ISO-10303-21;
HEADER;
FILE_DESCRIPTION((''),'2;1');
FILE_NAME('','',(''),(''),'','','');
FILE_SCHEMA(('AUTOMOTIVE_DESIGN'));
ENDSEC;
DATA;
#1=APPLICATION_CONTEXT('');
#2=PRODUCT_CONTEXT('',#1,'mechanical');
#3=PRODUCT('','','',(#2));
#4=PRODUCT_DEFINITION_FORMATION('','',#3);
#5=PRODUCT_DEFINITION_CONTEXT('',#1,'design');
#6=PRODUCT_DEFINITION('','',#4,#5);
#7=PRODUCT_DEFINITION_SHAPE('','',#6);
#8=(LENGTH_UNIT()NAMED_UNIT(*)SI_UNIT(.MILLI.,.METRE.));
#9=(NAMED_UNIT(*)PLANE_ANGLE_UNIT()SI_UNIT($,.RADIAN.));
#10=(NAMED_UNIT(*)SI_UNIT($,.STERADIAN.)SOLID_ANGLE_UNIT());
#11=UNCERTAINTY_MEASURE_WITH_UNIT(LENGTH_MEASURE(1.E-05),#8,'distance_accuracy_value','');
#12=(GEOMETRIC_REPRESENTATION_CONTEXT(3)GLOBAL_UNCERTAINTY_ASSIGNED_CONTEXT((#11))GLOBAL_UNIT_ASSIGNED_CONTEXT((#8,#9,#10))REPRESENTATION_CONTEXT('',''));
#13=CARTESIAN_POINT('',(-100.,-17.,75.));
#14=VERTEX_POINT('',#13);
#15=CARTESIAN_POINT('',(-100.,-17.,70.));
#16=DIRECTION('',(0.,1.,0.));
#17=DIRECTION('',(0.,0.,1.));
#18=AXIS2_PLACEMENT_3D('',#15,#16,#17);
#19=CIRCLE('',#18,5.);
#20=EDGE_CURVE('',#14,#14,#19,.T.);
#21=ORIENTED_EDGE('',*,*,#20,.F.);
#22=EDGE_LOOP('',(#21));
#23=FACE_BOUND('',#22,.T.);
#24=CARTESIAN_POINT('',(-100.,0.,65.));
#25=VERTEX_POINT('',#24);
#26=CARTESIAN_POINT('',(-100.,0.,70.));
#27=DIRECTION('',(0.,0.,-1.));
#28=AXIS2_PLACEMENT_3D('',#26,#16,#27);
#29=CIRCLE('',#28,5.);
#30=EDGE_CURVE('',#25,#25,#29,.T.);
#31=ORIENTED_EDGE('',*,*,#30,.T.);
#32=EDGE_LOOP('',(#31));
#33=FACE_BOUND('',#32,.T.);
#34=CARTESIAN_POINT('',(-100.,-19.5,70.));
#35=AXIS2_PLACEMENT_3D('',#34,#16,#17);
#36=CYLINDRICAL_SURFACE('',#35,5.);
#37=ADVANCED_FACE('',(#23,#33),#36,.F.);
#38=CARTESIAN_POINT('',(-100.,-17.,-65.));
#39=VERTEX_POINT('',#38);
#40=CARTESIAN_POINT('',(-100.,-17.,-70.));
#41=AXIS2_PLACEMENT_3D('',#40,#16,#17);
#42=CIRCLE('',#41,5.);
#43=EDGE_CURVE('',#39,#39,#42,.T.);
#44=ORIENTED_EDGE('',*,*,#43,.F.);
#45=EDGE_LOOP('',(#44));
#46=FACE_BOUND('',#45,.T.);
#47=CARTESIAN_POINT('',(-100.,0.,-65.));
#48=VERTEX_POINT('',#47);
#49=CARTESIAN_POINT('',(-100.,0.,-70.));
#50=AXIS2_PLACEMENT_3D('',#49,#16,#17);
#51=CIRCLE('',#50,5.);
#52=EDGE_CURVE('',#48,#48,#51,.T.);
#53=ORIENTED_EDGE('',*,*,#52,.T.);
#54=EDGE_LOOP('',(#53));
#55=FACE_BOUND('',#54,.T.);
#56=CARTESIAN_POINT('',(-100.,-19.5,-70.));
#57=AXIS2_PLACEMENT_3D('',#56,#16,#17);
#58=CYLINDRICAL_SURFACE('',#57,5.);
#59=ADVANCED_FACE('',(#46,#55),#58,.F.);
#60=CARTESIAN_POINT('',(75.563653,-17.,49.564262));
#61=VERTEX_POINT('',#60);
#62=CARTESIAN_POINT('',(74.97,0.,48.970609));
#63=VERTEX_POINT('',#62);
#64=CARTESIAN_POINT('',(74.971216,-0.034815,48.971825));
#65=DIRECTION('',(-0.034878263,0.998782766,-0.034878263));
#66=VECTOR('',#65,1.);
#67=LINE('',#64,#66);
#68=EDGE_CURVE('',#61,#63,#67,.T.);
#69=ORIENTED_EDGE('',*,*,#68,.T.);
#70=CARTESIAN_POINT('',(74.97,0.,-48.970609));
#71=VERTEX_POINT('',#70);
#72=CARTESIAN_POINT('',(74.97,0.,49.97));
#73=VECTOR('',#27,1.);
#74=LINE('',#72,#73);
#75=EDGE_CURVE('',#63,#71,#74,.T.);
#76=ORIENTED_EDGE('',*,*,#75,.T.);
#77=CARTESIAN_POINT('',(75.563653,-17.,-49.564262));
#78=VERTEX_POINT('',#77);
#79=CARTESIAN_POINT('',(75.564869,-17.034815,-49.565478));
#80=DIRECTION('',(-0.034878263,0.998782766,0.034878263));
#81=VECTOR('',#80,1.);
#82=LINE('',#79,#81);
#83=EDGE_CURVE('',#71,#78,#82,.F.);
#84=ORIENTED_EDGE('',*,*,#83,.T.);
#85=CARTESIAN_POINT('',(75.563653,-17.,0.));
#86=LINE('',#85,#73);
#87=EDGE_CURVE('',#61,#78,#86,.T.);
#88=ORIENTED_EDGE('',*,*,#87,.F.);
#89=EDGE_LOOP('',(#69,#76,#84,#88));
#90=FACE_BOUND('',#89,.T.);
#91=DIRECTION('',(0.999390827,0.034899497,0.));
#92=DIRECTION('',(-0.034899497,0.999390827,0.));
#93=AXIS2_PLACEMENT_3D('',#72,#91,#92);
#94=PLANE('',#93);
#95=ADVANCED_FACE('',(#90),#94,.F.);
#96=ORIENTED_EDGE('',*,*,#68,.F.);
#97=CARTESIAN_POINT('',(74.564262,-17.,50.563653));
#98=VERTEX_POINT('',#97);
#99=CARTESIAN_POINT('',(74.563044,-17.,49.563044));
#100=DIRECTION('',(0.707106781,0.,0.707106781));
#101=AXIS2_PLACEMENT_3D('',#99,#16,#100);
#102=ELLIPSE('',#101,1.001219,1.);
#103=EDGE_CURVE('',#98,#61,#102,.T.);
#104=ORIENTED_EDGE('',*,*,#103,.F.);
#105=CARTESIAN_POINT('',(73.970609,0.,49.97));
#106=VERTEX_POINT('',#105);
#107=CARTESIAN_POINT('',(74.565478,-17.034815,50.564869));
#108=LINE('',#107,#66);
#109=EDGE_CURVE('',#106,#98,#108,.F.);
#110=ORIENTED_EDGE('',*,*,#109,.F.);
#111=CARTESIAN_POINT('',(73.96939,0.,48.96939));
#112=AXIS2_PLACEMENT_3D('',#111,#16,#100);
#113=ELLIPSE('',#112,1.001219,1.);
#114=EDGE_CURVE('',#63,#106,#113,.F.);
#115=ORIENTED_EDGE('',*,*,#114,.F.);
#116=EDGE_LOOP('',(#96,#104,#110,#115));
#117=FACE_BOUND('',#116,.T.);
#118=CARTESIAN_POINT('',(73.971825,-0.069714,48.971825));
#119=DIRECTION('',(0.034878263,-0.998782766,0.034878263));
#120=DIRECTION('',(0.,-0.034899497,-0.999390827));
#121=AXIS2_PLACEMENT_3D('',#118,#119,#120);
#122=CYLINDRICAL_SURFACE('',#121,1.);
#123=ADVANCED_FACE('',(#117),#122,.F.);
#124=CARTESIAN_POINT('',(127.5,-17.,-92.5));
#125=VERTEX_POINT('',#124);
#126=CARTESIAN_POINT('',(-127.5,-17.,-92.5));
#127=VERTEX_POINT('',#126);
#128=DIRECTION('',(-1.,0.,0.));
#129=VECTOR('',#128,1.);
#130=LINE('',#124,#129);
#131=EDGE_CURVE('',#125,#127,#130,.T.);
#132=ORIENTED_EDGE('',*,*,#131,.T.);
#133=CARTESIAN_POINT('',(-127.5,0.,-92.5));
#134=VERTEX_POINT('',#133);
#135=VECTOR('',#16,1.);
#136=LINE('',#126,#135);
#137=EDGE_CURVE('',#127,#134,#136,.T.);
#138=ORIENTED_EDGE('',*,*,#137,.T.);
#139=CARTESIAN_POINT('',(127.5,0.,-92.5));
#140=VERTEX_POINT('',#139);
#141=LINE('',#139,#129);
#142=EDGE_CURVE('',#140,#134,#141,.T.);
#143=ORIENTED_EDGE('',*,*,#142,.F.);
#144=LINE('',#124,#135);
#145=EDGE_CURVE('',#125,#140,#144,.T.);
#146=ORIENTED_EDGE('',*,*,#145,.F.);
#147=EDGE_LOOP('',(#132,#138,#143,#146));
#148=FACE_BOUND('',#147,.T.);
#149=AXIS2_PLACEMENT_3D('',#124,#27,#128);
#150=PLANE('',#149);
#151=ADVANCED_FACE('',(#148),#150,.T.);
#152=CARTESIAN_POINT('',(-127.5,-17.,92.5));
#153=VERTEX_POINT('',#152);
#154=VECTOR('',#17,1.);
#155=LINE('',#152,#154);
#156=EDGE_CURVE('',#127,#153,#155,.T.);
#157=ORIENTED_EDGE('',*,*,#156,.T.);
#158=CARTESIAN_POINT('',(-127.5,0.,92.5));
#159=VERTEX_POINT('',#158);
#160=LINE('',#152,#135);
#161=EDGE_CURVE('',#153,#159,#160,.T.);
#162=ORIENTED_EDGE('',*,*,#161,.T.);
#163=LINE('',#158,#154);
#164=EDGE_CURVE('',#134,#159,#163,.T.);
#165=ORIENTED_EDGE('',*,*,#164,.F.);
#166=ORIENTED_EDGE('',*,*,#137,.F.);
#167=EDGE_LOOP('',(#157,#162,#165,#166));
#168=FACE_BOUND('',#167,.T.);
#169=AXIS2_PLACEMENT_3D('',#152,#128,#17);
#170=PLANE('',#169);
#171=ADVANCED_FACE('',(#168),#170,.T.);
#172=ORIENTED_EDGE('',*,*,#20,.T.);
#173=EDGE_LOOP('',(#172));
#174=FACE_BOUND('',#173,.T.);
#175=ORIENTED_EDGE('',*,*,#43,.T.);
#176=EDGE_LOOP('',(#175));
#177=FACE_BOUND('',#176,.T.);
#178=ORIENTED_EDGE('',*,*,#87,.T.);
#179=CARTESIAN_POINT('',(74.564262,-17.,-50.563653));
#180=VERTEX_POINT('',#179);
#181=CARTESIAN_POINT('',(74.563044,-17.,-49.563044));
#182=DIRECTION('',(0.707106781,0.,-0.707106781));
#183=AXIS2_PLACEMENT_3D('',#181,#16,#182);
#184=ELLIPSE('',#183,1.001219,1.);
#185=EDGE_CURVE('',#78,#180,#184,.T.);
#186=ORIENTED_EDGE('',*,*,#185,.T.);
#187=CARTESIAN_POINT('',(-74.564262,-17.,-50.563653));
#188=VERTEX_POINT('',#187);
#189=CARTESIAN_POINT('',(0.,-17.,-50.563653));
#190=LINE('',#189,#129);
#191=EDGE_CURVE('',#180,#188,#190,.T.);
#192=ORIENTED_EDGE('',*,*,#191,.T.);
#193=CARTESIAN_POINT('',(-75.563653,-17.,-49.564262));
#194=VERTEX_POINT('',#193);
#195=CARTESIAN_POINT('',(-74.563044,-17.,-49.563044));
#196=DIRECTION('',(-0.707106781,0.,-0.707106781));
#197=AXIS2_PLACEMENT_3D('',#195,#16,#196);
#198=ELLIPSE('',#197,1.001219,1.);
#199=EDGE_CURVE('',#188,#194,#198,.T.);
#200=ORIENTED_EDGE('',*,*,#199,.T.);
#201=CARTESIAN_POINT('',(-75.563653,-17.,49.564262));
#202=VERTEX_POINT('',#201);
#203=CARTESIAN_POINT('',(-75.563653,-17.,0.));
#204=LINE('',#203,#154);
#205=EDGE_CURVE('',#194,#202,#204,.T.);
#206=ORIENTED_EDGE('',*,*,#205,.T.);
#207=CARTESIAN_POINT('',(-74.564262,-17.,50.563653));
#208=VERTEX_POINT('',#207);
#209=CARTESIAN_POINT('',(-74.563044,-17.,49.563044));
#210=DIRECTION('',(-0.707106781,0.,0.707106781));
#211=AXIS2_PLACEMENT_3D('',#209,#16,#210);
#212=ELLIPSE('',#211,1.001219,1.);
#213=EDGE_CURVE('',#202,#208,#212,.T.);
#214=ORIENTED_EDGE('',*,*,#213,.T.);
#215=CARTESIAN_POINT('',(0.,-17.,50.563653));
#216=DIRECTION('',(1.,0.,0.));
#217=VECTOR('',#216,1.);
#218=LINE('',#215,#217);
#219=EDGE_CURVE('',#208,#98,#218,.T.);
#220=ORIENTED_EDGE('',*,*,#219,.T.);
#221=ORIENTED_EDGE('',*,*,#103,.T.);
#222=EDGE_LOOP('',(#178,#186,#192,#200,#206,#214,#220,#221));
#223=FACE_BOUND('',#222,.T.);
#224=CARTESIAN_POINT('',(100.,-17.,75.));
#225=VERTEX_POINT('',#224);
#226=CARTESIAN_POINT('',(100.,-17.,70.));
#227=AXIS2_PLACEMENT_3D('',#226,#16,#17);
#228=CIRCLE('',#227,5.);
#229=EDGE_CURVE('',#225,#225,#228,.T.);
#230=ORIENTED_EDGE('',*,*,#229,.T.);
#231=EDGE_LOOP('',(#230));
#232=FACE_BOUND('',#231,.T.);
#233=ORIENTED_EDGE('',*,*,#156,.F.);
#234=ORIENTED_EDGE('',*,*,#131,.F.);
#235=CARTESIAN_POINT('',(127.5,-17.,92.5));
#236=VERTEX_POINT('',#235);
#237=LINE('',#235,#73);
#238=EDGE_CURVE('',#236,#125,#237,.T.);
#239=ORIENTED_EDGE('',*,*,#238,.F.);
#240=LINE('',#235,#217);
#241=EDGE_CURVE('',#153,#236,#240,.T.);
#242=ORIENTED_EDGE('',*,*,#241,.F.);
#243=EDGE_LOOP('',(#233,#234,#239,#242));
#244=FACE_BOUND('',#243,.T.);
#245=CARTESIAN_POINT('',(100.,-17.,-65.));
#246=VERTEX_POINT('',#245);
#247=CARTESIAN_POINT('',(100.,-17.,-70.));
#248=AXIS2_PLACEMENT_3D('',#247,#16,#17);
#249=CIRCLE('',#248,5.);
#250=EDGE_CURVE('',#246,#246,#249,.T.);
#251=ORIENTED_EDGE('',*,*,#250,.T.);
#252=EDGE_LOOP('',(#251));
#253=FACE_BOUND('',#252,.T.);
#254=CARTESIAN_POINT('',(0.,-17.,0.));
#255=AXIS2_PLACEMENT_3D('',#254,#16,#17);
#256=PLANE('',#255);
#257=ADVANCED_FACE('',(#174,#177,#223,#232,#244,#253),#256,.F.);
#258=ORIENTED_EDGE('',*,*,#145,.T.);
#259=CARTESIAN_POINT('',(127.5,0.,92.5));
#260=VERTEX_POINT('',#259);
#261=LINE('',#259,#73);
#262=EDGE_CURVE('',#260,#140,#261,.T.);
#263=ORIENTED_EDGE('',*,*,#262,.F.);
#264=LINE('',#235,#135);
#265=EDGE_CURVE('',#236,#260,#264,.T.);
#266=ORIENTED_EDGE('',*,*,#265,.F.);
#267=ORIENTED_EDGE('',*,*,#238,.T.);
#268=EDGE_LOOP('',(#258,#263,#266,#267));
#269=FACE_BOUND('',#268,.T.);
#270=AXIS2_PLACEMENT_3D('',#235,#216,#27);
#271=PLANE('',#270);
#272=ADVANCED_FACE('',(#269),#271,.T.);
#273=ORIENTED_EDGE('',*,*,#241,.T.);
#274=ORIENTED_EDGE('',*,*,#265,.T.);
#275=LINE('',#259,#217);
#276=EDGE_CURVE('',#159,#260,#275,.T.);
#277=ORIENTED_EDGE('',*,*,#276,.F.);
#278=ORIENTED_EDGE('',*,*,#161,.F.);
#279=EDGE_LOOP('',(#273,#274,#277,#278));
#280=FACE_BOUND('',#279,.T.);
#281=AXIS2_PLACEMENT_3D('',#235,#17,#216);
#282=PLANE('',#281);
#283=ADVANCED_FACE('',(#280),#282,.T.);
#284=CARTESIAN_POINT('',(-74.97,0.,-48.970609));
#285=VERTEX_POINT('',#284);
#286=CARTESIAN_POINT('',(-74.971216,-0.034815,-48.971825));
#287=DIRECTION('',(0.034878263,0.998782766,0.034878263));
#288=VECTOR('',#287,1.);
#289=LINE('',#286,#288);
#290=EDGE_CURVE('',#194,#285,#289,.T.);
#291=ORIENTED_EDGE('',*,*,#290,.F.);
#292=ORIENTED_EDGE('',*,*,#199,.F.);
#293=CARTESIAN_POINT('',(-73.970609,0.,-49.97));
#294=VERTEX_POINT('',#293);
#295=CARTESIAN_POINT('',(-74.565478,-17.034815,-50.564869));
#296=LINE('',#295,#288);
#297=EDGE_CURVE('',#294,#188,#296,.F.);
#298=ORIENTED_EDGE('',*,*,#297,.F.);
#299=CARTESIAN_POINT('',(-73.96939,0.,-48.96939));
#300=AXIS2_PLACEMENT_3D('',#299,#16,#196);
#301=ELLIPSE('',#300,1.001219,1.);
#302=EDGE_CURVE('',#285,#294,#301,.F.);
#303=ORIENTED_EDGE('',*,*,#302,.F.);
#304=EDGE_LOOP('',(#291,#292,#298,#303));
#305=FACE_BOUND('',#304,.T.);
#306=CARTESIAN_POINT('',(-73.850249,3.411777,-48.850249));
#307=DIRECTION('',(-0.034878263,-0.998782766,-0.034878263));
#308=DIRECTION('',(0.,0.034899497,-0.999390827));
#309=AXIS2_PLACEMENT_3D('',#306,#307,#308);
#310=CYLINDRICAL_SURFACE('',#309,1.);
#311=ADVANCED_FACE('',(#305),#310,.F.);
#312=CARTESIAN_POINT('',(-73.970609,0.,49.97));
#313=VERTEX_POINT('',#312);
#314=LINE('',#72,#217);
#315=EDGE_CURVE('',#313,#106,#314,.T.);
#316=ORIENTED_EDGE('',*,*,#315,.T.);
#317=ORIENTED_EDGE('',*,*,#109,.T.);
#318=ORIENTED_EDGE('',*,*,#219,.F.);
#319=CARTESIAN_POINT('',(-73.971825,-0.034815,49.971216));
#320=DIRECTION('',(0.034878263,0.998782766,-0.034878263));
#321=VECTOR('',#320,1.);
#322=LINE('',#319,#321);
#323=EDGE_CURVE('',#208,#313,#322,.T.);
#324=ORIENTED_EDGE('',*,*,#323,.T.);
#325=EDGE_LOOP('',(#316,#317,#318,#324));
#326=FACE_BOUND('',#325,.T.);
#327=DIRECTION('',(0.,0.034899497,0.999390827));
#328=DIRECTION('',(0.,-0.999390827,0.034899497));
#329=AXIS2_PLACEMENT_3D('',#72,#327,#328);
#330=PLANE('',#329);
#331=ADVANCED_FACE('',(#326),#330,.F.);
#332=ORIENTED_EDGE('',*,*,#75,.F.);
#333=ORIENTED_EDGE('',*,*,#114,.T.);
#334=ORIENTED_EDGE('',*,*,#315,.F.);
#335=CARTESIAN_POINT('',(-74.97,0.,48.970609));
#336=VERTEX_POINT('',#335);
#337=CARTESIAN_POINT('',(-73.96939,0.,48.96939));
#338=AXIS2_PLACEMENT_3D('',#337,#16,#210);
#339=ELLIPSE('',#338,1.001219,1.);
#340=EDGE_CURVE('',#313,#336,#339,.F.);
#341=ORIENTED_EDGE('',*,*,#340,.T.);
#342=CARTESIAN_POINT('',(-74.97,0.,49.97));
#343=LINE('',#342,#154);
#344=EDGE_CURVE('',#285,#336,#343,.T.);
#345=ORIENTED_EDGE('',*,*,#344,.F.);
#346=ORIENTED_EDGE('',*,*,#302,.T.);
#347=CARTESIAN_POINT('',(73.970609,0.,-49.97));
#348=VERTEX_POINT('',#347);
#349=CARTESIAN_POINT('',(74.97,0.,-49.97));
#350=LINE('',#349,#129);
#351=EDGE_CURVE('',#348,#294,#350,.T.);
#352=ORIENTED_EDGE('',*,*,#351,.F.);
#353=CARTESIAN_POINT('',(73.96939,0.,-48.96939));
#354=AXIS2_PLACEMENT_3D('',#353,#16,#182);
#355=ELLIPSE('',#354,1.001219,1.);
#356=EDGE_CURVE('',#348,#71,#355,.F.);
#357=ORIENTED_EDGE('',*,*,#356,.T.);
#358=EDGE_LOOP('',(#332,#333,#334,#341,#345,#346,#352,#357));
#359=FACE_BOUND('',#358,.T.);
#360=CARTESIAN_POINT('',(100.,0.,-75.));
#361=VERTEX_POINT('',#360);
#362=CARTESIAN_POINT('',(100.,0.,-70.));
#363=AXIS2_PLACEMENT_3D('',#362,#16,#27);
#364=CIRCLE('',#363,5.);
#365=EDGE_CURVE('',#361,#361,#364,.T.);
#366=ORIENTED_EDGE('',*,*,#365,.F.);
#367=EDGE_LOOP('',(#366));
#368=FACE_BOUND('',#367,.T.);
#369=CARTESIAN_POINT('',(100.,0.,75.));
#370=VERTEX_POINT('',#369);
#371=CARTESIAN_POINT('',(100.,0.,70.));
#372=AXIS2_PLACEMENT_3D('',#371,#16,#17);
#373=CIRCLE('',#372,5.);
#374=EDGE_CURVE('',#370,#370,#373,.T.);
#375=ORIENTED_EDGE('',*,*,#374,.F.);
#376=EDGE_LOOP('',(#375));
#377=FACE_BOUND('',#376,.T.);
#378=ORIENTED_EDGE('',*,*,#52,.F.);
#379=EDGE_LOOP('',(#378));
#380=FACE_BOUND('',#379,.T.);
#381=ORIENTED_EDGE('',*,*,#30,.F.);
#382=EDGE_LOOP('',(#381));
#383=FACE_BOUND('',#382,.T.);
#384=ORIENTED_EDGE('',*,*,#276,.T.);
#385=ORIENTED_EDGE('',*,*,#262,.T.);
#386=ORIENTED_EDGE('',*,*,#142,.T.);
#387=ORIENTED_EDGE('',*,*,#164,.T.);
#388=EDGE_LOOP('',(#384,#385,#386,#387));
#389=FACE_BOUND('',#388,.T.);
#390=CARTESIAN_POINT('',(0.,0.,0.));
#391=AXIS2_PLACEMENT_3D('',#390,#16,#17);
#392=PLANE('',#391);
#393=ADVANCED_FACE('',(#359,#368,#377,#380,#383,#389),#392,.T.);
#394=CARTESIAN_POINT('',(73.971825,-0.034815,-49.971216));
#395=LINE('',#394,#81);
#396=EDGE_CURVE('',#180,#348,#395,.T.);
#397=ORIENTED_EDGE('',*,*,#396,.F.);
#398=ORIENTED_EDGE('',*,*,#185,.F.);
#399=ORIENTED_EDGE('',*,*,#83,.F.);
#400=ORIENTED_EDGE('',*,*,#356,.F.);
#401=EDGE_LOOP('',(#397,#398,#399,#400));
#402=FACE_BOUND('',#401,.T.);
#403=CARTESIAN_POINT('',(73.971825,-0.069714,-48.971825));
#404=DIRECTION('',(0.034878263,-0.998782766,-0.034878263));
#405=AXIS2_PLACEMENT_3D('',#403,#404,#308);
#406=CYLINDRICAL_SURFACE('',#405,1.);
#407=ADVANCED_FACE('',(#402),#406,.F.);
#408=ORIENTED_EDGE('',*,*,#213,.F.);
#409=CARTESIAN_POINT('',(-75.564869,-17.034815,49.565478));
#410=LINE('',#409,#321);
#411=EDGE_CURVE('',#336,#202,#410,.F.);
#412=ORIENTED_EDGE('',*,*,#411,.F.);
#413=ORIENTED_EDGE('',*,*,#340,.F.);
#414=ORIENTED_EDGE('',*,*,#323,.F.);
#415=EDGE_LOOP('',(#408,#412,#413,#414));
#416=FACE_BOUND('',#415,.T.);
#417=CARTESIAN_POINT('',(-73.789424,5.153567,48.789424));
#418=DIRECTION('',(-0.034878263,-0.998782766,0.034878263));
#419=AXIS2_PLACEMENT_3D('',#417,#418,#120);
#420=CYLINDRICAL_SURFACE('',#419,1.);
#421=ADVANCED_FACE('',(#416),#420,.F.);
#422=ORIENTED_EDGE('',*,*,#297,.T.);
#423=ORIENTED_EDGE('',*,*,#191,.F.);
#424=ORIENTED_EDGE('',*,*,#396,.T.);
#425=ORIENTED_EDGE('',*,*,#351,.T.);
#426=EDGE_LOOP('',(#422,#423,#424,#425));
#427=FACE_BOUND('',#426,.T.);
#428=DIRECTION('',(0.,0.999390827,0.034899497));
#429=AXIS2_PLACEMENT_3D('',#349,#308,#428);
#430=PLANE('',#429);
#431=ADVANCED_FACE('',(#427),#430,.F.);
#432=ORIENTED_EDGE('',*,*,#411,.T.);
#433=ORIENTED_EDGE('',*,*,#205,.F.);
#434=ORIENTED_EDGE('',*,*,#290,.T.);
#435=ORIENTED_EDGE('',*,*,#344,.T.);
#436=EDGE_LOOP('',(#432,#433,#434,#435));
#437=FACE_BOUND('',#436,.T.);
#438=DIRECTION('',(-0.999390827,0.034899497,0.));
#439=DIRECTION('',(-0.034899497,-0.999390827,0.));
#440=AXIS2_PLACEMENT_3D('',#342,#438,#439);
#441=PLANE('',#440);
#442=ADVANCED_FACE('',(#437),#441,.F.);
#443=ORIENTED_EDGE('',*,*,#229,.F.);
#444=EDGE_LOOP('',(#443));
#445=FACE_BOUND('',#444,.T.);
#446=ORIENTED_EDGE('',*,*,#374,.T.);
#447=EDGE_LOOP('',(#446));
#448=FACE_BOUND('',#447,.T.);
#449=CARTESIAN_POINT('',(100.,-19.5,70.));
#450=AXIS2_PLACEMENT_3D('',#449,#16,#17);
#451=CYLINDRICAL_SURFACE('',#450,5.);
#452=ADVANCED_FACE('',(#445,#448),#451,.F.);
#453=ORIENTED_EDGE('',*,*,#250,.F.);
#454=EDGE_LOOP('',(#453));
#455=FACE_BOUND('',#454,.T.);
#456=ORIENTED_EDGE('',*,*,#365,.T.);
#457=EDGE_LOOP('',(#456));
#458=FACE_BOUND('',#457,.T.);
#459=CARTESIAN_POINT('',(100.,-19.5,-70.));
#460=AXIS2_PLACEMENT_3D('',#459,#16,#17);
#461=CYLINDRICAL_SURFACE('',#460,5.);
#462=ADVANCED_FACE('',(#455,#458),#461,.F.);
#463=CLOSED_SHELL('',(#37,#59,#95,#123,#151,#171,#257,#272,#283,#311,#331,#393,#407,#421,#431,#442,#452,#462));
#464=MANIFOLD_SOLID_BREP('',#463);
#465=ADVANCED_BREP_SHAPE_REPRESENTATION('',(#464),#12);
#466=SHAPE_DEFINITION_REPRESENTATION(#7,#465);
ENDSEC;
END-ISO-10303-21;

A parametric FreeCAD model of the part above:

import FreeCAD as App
import Part
import Sketcher
Q = App.Units.Quantity


def edges_at(feature, points):
    """Names of the edges that pass closest to the given points."""
    edges = feature.Shape.Edges
    near = lambda p: min(range(len(edges)), key=lambda i: edges[i].distToShape(Part.Vertex(*p))[0])
    return sorted({f"Edge{near(p) + 1}" for p in points})

doc = App.newDocument("Part")
body = doc.addObject("PartDesign::Body", "Body")

# Sketch on XZ plane
sketch1 = body.newObject("Sketcher::SketchObject", "Sketch")
sketch1.AttachmentSupport = (doc.getObject("XZ_Plane"), [""])
sketch1.MapMode = "FlatFace"
sketch1.addGeometry(Part.LineSegment(App.Vector(-128, -92, 0), App.Vector(-128, 92, 0)), False)
sketch1.addGeometry(Part.LineSegment(App.Vector(-128, 92, 0), App.Vector(128, 92, 0)), False)
sketch1.addGeometry(Part.LineSegment(App.Vector(128, 92, 0), App.Vector(128, -92, 0)), False)
sketch1.addGeometry(Part.LineSegment(App.Vector(128, -92, 0), App.Vector(-128, -92, 0)), False)
sketch1.addConstraint(Sketcher.Constraint("Coincident", 0, 2, 1, 1))
sketch1.addConstraint(Sketcher.Constraint("Coincident", 1, 2, 2, 1))
sketch1.addConstraint(Sketcher.Constraint("Coincident", 2, 2, 3, 1))
sketch1.addConstraint(Sketcher.Constraint("Coincident", 3, 2, 0, 1))
sketch1.addConstraint(Sketcher.Constraint("Vertical", 0))
sketch1.addConstraint(Sketcher.Constraint("Horizontal", 1))
sketch1.addConstraint(Sketcher.Constraint("Vertical", 2))
sketch1.addConstraint(Sketcher.Constraint("Horizontal", 3))
sketch1.addConstraint(Sketcher.Constraint("Symmetric", 0, 2, 2, 2, -1, 1))
sketch1.addConstraint(Sketcher.Constraint("DistanceX", 1, 1, 1, 2, Q("255 mm")))
sketch1.addConstraint(Sketcher.Constraint("DistanceY", 0, 1, 0, 2, Q("185 mm")))
pad1 = body.newObject("PartDesign::Pad", "Pad")
pad1.Profile = sketch1
pad1.Length = 17

# Sketch on XZ plane
sketch2 = body.newObject("Sketcher::SketchObject", "Sketch001")
sketch2.AttachmentSupport = (doc.getObject("XZ_Plane"), [""])
sketch2.MapMode = "FlatFace"
sketch2.addGeometry(Part.LineSegment(App.Vector(-75, -50, 0), App.Vector(-75, 50, 0)), False)
sketch2.addGeometry(Part.LineSegment(App.Vector(-75, 50, 0), App.Vector(75, 50, 0)), False)
sketch2.addGeometry(Part.LineSegment(App.Vector(75, 50, 0), App.Vector(75, -50, 0)), False)
sketch2.addGeometry(Part.LineSegment(App.Vector(75, -50, 0), App.Vector(-75, -50, 0)), False)
sketch2.addConstraint(Sketcher.Constraint("Coincident", 0, 2, 1, 1))
sketch2.addConstraint(Sketcher.Constraint("Coincident", 1, 2, 2, 1))
sketch2.addConstraint(Sketcher.Constraint("Coincident", 2, 2, 3, 1))
sketch2.addConstraint(Sketcher.Constraint("Coincident", 3, 2, 0, 1))
sketch2.addConstraint(Sketcher.Constraint("Vertical", 0))
sketch2.addConstraint(Sketcher.Constraint("Horizontal", 1))
sketch2.addConstraint(Sketcher.Constraint("Vertical", 2))
sketch2.addConstraint(Sketcher.Constraint("Horizontal", 3))
sketch2.addConstraint(Sketcher.Constraint("Symmetric", 0, 2, 2, 2, -1, 1))
sketch2.addConstraint(Sketcher.Constraint("DistanceX", 1, 1, 1, 2, Q("149.94 mm")))
sketch2.addConstraint(Sketcher.Constraint("DistanceY", 0, 1, 0, 2, Q("99.94 mm")))
pocket1 = body.newObject("PartDesign::Pocket", "Pocket")
pocket1.Profile = sketch2
pocket1.Length = 19.5
pocket1.Reversed = True
pocket1.TaperAngle = 2
doc.recompute()

fillet = body.newObject("PartDesign::Fillet", "Fillet")
fillet.Base = (pocket1, edges_at(pocket1, [
    (-75.267, -8.5, 50.267),
    (-75.267, -8.5, -50.267),
    (75.267, -8.5, -50.267),
    (75.267, -8.5, 50.267),
]))
fillet.Radius = 1

# Sketch on XZ plane
sketch3 = body.newObject("Sketcher::SketchObject", "Sketch002")
sketch3.AttachmentSupport = (doc.getObject("XZ_Plane"), [""])
sketch3.MapMode = "FlatFace"
sketch3.addGeometry(Part.Circle(App.Vector(-100, -70, 0), App.Vector(0, 0, 1), 5), False)
sketch3.addGeometry(Part.Circle(App.Vector(100, -70, 0), App.Vector(0, 0, 1), 5), False)
sketch3.addGeometry(Part.Circle(App.Vector(100, 70, 0), App.Vector(0, 0, 1), 5), False)
sketch3.addGeometry(Part.Circle(App.Vector(-100, 70, 0), App.Vector(0, 0, 1), 5), False)
sketch3.addConstraint(Sketcher.Constraint("Equal", 0, 1))
sketch3.addConstraint(Sketcher.Constraint("Equal", 1, 2))
sketch3.addConstraint(Sketcher.Constraint("Equal", 2, 3))
sketch3.addConstraint(Sketcher.Constraint("Symmetric", 0, 3, 2, 3, -1, 1))
sketch3.addConstraint(Sketcher.Constraint("Symmetric", 1, 3, 3, 3, -1, 1))
sketch3.addConstraint(Sketcher.Constraint("Symmetric", 0, 3, 1, 3, -2))
sketch3.addConstraint(Sketcher.Constraint("Diameter", 0, Q("10 mm")))
sketch3.addConstraint(Sketcher.Constraint("DistanceX", 0, 3, -1, 1, Q("100 mm")))
sketch3.addConstraint(Sketcher.Constraint("DistanceY", 0, 3, -1, 1, Q("70 mm")))
pocket2 = body.newObject("PartDesign::Pocket", "Pocket001")
pocket2.Profile = sketch3
pocket2.Length = 19.5
pocket2.Reversed = True

doc.recompute()
